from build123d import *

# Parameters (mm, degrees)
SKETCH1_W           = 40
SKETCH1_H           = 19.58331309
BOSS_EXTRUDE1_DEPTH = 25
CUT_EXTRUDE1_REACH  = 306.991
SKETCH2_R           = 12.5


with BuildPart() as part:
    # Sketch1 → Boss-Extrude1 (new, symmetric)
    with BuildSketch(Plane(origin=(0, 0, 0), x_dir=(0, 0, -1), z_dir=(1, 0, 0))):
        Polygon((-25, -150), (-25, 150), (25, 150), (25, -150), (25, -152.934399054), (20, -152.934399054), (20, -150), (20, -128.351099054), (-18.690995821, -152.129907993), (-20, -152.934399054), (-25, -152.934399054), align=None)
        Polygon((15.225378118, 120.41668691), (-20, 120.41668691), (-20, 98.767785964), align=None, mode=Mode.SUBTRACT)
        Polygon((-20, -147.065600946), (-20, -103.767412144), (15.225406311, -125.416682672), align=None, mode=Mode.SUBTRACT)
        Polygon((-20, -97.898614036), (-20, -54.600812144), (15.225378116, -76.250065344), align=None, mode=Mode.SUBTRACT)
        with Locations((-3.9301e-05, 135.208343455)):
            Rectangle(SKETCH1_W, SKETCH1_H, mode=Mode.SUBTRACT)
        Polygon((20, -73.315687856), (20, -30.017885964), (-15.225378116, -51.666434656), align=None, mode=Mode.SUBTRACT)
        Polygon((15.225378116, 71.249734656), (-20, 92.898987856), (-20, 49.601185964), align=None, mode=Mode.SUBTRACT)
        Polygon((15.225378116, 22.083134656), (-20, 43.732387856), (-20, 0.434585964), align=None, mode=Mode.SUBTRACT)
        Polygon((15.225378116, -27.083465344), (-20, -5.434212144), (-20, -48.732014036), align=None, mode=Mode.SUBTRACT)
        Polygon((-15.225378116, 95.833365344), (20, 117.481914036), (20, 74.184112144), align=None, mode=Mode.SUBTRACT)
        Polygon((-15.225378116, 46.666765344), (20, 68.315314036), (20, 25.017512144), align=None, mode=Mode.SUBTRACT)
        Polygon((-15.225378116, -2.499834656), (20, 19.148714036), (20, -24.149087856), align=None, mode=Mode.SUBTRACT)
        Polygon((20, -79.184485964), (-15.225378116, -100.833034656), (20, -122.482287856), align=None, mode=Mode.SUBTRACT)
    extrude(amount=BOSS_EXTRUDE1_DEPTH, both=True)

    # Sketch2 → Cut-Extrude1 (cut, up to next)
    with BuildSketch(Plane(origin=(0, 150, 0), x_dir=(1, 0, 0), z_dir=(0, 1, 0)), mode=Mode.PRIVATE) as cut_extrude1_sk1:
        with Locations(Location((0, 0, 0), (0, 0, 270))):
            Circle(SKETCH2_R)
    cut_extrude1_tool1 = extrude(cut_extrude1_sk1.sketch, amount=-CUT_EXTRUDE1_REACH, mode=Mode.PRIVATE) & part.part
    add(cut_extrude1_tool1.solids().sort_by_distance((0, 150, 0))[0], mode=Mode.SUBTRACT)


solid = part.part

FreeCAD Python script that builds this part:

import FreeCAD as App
import Part
import Sketcher

V = App.Vector

doc = App.newDocument("Part")
body = doc.addObject("PartDesign::Body", "Body")

sketch1 = doc.addObject("Sketcher::SketchObject", "Sketch")
body.addObject(sketch1)
sketch1.AttachmentSupport = (doc.YZ_Plane, [""])
sketch1.MapMode = "FlatFace"
sketch1.addGeometry([
    Part.LineSegment(V(150, 25, 0), V(-152.934399, 25, 0)),
    Part.LineSegment(V(-152.934399, 25, 0), V(-152.934399, 20, 0)),
    Part.LineSegment(V(-152.934399, 20, 0), V(-152.129908, 18.690996, 0)),
    Part.LineSegment(V(-152.129908, 18.690996, 0), V(-128.351099, -20, 0)),
    Part.LineSegment(V(-128.351099, -20, 0), V(-152.934399, -20, 0)),
    Part.LineSegment(V(-152.934399, -20, 0), V(-152.934399, -25, 0)),
    Part.LineSegment(V(-152.934399, -25, 0), V(150, -25, 0)),
    Part.LineSegment(V(150, -25, 0), V(150, 25, 0)),
    Part.LineSegment(V(-79.184486, -20, 0), V(-122.482288, -20, 0)),
    Part.LineSegment(V(-122.482288, -20, 0), V(-100.833035, 15.225378, 0)),
    Part.LineSegment(V(-100.833035, 15.225378, 0), V(-79.184486, -20, 0)),
    Part.LineSegment(V(-73.315688, -20, 0), V(-51.666435, 15.225378, 0)),
    Part.LineSegment(V(-51.666435, 15.225378, 0), V(-30.017886, -20, 0)),
    Part.LineSegment(V(-30.017886, -20, 0), V(-73.315688, -20, 0)),
    Part.LineSegment(V(-2.499835, 15.225378, 0), V(19.148714, -20, 0)),
    Part.LineSegment(V(19.148714, -20, 0), V(-24.149088, -20, 0)),
    Part.LineSegment(V(-24.149088, -20, 0), V(-2.499835, 15.225378, 0)),
    Part.LineSegment(V(-147.065601, 20, 0), V(-103.767412, 20, 0)),
    Part.LineSegment(V(-103.767412, 20, 0), V(-125.416683, -15.225406, 0)),
    Part.LineSegment(V(-125.416683, -15.225406, 0), V(-147.065601, 20, 0)),
    Part.LineSegment(V(-97.898614, 20, 0), V(-54.600812, 20, 0)),
    Part.LineSegment(V(-54.600812, 20, 0), V(-76.250065, -15.225378, 0)),
    Part.LineSegment(V(-76.250065, -15.225378, 0), V(-97.898614, 20, 0)),
    Part.LineSegment(V(-27.083465, -15.225378, 0), V(-48.732014, 20, 0)),
    Part.LineSegment(V(-48.732014, 20, 0), V(-5.434212, 20, 0)),
    Part.LineSegment(V(-5.434212, 20, 0), V(-27.083465, -15.225378, 0)),
    Part.LineSegment(V(46.666765, 15.225378, 0), V(68.315314, -20, 0)),
    Part.LineSegment(V(68.315314, -20, 0), V(25.017512, -20, 0)),
    Part.LineSegment(V(25.017512, -20, 0), V(46.666765, 15.225378, 0)),
    Part.LineSegment(V(95.833365, 15.225378, 0), V(117.481914, -20, 0)),
    Part.LineSegment(V(117.481914, -20, 0), V(74.184112, -20, 0)),
    Part.LineSegment(V(74.184112, -20, 0), V(95.833365, 15.225378, 0)),
    Part.LineSegment(V(22.083135, -15.225378, 0), V(0.434586, 20, 0)),
    Part.LineSegment(V(0.434586, 20, 0), V(43.732388, 20, 0)),
    Part.LineSegment(V(43.732388, 20, 0), V(22.083135, -15.225378, 0)),
    Part.LineSegment(V(71.249735, -15.225378, 0), V(49.601186, 20, 0)),
    Part.LineSegment(V(49.601186, 20, 0), V(92.898988, 20, 0)),
    Part.LineSegment(V(92.898988, 20, 0), V(71.249735, -15.225378, 0)),
    Part.LineSegment(V(120.416687, -15.225378, 0), V(98.767786, 20, 0)),
    Part.LineSegment(V(98.767786, 20, 0), V(120.416687, 20, 0)),
    Part.LineSegment(V(120.416687, 20, 0), V(120.416687, -15.225378, 0)),
    Part.LineSegment(V(125.416687, 20.000039, 0), V(145, 20.000039, 0)),
    Part.LineSegment(V(145, 20.000039, 0), V(145, -19.999961, 0)),
    Part.LineSegment(V(145, -19.999961, 0), V(125.416687, -19.999961, 0)),
    Part.LineSegment(V(125.416687, -19.999961, 0), V(125.416687, 20.000039, 0)),
], False)
sketch1.addConstraint([
    Sketcher.Constraint("Coincident", 0, 2, 1, 1),
    Sketcher.Constraint("Coincident", 1, 2, 2, 1),
    Sketcher.Constraint("Coincident", 2, 2, 3, 1),
    Sketcher.Constraint("Coincident", 3, 2, 4, 1),
    Sketcher.Constraint("Coincident", 4, 2, 5, 1),
    Sketcher.Constraint("Coincident", 5, 2, 6, 1),
    Sketcher.Constraint("Coincident", 6, 2, 7, 1),
    Sketcher.Constraint("Coincident", 7, 2, 0, 1),
    Sketcher.Constraint("Coincident", 8, 2, 9, 1),
    Sketcher.Constraint("Coincident", 9, 2, 10, 1),
    Sketcher.Constraint("Coincident", 10, 2, 8, 1),
    Sketcher.Constraint("Coincident", 11, 2, 12, 1),
    Sketcher.Constraint("Coincident", 12, 2, 13, 1),
    Sketcher.Constraint("Coincident", 13, 2, 11, 1),
    Sketcher.Constraint("Coincident", 14, 2, 15, 1),
    Sketcher.Constraint("Coincident", 15, 2, 16, 1),
    Sketcher.Constraint("Coincident", 16, 2, 14, 1),
    Sketcher.Constraint("Coincident", 17, 2, 18, 1),
    Sketcher.Constraint("Coincident", 18, 2, 19, 1),
    Sketcher.Constraint("Coincident", 19, 2, 17, 1),
    Sketcher.Constraint("Coincident", 20, 2, 21, 1),
    Sketcher.Constraint("Coincident", 21, 2, 22, 1),
    Sketcher.Constraint("Coincident", 22, 2, 20, 1),
    Sketcher.Constraint("Coincident", 23, 2, 24, 1),
    Sketcher.Constraint("Coincident", 24, 2, 25, 1),
    Sketcher.Constraint("Coincident", 25, 2, 23, 1),
    Sketcher.Constraint("Coincident", 26, 2, 27, 1),
    Sketcher.Constraint("Coincident", 27, 2, 28, 1),
    Sketcher.Constraint("Coincident", 28, 2, 26, 1),
    Sketcher.Constraint("Coincident", 29, 2, 30, 1),
    Sketcher.Constraint("Coincident", 30, 2, 31, 1),
    Sketcher.Constraint("Coincident", 31, 2, 29, 1),
    Sketcher.Constraint("Coincident", 32, 2, 33, 1),
    Sketcher.Constraint("Coincident", 33, 2, 34, 1),
    Sketcher.Constraint("Coincident", 34, 2, 32, 1),
    Sketcher.Constraint("Coincident", 35, 2, 36, 1),
    Sketcher.Constraint("Coincident", 36, 2, 37, 1),
    Sketcher.Constraint("Coincident", 37, 2, 35, 1),
    Sketcher.Constraint("Coincident", 38, 2, 39, 1),
    Sketcher.Constraint("Coincident", 39, 2, 40, 1),
    Sketcher.Constraint("Coincident", 40, 2, 38, 1),
    Sketcher.Constraint("Coincident", 41, 2, 42, 1),
    Sketcher.Constraint("Coincident", 42, 2, 43, 1),
    Sketcher.Constraint("Coincident", 43, 2, 44, 1),
    Sketcher.Constraint("Coincident", 44, 2, 41, 1),
    Sketcher.Constraint("Horizontal", 0),
    Sketcher.Constraint("Vertical", 1),
    Sketcher.Constraint("Horizontal", 4),
    Sketcher.Constraint("Vertical", 5),
    Sketcher.Constraint("Horizontal", 6),
    Sketcher.Constraint("Vertical", 7),
    Sketcher.Constraint("Horizontal", 8),
    Sketcher.Constraint("Horizontal", 13),
    Sketcher.Constraint("Horizontal", 15),
    Sketcher.Constraint("Horizontal", 17),
    Sketcher.Constraint("Horizontal", 20),
    Sketcher.Constraint("Horizontal", 24),
    Sketcher.Constraint("Horizontal", 27),
    Sketcher.Constraint("Horizontal", 30),
    Sketcher.Constraint("Horizontal", 33),
    Sketcher.Constraint("Horizontal", 36),
    Sketcher.Constraint("Horizontal", 39),
    Sketcher.Constraint("Vertical", 40),
    Sketcher.Constraint("Horizontal", 41),
    Sketcher.Constraint("Vertical", 42),
    Sketcher.Constraint("Horizontal", 43),
    Sketcher.Constraint("Vertical", 44),
    Sketcher.Constraint("Symmetric", 1, 2, 4, 2, -1),
    Sketcher.Constraint("Parallel", 2, 3),
    Sketcher.Constraint("Parallel", 9, 11),
    Sketcher.Constraint("Parallel", 10, 12),
    Sketcher.Constraint("Parallel", 12, 14),
    Sketcher.Constraint("Parallel", 11, 16),
    Sketcher.Constraint("Parallel", 16, 18),
    Sketcher.Constraint("Parallel", 3, 19),
    Sketcher.Constraint("Parallel", 18, 21),
    Sketcher.Constraint("Parallel", 14, 22),
    Sketcher.Constraint("Parallel", 22, 23),
    Sketcher.Constraint("Parallel", 21, 25),
    Sketcher.Constraint("Parallel", 23, 26),
    Sketcher.Constraint("Parallel", 25, 28),
    Sketcher.Constraint("Parallel", 26, 29),
    Sketcher.Constraint("Parallel", 28, 31),
    Sketcher.Constraint("Parallel", 29, 32),
    Sketcher.Constraint("Parallel", 31, 34),
    Sketcher.Constraint("Parallel", 32, 35),
    Sketcher.Constraint("Parallel", 34, 37),
    Sketcher.Constraint("Parallel", 19, 38),
    Sketcher.Constraint("Horizontal", 4, 2, 8, 2),
    Sketcher.Constraint("Horizontal", 9, 2, 11, 2),
    Sketcher.Constraint("Horizontal", 10, 2, 12, 2),
    Sketcher.Constraint("Horizontal", 13, 2, 14, 2),
    Sketcher.Constraint("Horizontal", 11, 2, 16, 2),
    Sketcher.Constraint("Horizontal", 1, 2, 17, 2),
    Sketcher.Constraint("Horizontal", 19, 2, 20, 2),
    Sketcher.Constraint("Horizontal", 22, 2, 23, 2),
    Sketcher.Constraint("Horizontal", 21, 2, 25, 2),
    Sketcher.Constraint("Horizontal", 15, 2, 26, 2),
    Sketcher.Constraint("Horizontal", 16, 2, 28, 2),
    Sketcher.Constraint("Horizontal", 27, 2, 29, 2),
    Sketcher.Constraint("Horizontal", 28, 2, 31, 2),
    Sketcher.Constraint("Horizontal", 24, 2, 32, 2),
    Sketcher.Constraint("Horizontal", 25, 2, 34, 2),
    Sketcher.Constraint("Horizontal", 33, 2, 35, 2),
    Sketcher.Constraint("Horizontal", 34, 2, 37, 2),
    Sketcher.Constraint("Horizontal", 36, 2, 38, 2),
    Sketcher.Constraint("Horizontal", 37, 2, 40, 2),
    Sketcher.Constraint("Equal", 15, 20),
    Sketcher.Constraint("Equal", 1, 5),
    Sketcher.Constraint("DistanceY", 1, 2, 1, 1, 5.0),
    Sketcher.Constraint("DistanceY", 7, 1, 7, 2, 50.0),
    Sketcher.Constraint("DistanceY", 42, 2, 42, 1, 40.0),
    Sketcher.Constraint("DistanceX", -1, 1, 6, 2, 150.0),
    Sketcher.Constraint("DistanceX", -1, 1, 41, 2, 145.0),
    Sketcher.Constraint("DistanceX", 40, 2, 43, 2, 5.0),
    Sketcher.Constraint("DistanceX", 0, 2, 0, 1, 302.934399),
    Sketcher.Constraint("DistanceX", 4, 2, 4, 1, 24.5833),
    Sketcher.Constraint("DistanceX", 8, 2, 8, 1, 43.297802),
    Sketcher.Constraint("DistanceX", 39, 1, 39, 2, 21.648901),
    Sketcher.Constraint("DistanceX", 17, 1, 17, 2, 43.298189),
    Sketcher.Constraint("DistanceX", 19, 2, -1, 1, 147.065601),
    Sketcher.Constraint("DistanceX", 9, 2, 11, 2, 49.1666),
    Sketcher.Constraint("DistanceX", 12, 2, 14, 2, 49.1666),
    Sketcher.Constraint("DistanceX", 17, 2, 22, 2, 5.868798),
    Sketcher.Constraint("DistanceX", 20, 2, 23, 2, 5.868798),
    Sketcher.Constraint("DistanceX", 14, 2, 26, 2, 49.1666),
    Sketcher.Constraint("DistanceX", 26, 2, 29, 2, 49.1666),
    Sketcher.Constraint("DistanceX", 24, 2, 32, 2, 5.868798),
    Sketcher.Constraint("DistanceX", 33, 2, 35, 2, 5.868798),
    Sketcher.Constraint("DistanceX", 36, 2, 38, 2, 5.868798),
    Sketcher.Constraint("Distance", 3, 45.413929),
    Sketcher.Constraint("Distance", 9, 41.346311),
    Sketcher.Constraint("DistanceY", -1, 1, 41, 2, 20.000039),
    Sketcher.Constraint("DistanceX", 3, 2, 8, 2, 5.868811),
])
pad1 = doc.addObject("PartDesign::Pad", "Pad")
body.addObject(pad1)
pad1.Profile = sketch1
pad1.Length = 50
pad1.Midplane = True

sketch2 = doc.addObject("Sketcher::SketchObject", "Sketch001")
body.addObject(sketch2)
sketch2.AttachmentSupport = (doc.XZ_Plane, [""])
sketch2.MapMode = "FlatFace"
sketch2.AttachmentOffset = App.Placement(V(0, 0, -150), App.Rotation())
sketch2.addGeometry(Part.Circle(V(0, 0, 0), V(0, 0, 1), 12.5), False)
sketch2.addConstraint([
    Sketcher.Constraint("Coincident", 0, 3, -1, 1),
    Sketcher.Constraint("Diameter", 0, 25.0),
])
pocket1 = doc.addObject("PartDesign::Pocket", "Pocket")
body.addObject(pocket1)
pocket1.Profile = sketch2
pocket1.Type = "UpToFirst"
pocket1.Reversed = True

doc.recompute()
